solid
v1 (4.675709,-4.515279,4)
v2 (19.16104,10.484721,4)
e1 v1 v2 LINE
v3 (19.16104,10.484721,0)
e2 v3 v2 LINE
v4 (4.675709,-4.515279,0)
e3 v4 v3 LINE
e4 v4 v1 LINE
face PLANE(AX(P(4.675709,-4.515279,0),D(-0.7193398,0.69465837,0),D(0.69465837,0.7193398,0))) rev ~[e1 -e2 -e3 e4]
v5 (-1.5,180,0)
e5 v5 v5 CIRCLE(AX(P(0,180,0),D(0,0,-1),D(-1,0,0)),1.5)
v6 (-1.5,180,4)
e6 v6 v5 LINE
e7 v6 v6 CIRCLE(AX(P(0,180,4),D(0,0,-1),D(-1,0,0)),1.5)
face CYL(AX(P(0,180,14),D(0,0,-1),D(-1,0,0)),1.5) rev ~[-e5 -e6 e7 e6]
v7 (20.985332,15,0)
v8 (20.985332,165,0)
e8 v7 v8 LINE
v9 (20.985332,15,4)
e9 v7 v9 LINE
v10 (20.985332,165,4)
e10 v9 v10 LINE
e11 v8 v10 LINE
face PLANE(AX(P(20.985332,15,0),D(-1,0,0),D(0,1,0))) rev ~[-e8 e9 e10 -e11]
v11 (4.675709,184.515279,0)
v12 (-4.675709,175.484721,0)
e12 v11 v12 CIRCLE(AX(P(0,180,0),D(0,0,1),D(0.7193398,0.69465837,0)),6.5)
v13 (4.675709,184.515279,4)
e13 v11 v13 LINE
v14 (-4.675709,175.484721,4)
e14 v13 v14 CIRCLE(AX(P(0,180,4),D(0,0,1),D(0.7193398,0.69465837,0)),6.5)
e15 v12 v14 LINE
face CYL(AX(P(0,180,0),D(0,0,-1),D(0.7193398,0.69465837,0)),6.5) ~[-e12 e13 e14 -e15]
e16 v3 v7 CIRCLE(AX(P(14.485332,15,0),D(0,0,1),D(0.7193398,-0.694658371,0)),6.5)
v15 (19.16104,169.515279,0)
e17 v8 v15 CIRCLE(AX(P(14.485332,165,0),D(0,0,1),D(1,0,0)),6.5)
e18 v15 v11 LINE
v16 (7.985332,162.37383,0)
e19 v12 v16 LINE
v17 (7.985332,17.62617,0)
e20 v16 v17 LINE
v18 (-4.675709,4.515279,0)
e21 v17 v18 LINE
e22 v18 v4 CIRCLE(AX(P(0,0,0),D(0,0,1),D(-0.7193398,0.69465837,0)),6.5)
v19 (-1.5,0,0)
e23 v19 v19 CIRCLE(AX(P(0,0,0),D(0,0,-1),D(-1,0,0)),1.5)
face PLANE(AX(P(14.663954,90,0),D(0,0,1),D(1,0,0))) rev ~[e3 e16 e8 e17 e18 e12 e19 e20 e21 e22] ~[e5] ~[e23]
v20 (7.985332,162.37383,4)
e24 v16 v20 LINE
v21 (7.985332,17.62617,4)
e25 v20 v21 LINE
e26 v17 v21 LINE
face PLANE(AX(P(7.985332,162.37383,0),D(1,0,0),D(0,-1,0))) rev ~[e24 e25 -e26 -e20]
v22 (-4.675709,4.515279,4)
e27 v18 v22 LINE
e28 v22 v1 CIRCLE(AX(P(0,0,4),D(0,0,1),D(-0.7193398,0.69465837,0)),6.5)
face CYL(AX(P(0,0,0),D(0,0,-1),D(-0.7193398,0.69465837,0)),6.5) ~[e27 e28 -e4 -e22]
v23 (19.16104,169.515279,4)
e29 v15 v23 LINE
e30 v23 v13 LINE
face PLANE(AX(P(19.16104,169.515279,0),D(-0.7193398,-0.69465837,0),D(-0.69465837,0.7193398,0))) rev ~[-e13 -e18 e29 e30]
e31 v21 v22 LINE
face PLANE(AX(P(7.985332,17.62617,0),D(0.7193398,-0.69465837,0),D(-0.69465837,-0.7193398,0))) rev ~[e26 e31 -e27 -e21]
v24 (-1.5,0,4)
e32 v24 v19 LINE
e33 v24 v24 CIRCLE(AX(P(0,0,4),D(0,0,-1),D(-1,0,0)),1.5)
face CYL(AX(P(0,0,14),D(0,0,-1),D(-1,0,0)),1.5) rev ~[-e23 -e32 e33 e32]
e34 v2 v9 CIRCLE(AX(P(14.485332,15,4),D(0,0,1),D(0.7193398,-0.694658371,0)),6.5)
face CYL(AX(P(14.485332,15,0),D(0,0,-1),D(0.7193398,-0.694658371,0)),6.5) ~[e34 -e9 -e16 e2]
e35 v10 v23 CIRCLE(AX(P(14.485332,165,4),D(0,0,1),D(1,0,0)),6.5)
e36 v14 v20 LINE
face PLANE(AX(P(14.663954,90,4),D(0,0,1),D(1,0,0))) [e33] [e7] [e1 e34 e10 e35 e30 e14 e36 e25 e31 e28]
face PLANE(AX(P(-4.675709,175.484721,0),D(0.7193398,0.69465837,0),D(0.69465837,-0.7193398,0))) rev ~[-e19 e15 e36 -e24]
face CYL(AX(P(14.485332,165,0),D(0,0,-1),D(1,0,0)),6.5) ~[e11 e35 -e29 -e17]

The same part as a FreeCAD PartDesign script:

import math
import FreeCAD as App
import Part
import Sketcher

V = App.Vector
Q = App.Units.Quantity

doc = App.newDocument("Part")
body = doc.addObject("PartDesign::Body", "Body")

# Sketch on XY plane
sketch1 = body.newObject("Sketcher::SketchObject", "Sketch")
sketch1.AttachmentSupport = (doc.getObject("XY_Plane"), [""])
sketch1.MapMode = "FlatFace"
sketch1.addGeometry([
    Part.LineSegment(V(8, 162.4, 0), V(8, 17.6, 0)),  # 0
    Part.LineSegment(V(8, 17.6, 0), V(-4.7, 4.5, 0)),  # 1
    Part.ArcOfCircle(Part.Circle(V(0, 0, 0), V(0, 0, 1), 6.5), math.radians(136), math.radians(316)),  # 2
    Part.LineSegment(V(4.7, -4.5, 0), V(19.2, 10.5, 0)),  # 3
    Part.ArcOfCircle(Part.Circle(V(14.5, 15, 0), V(0, 0, 1), 6.5), math.radians(-44), math.radians(0)),  # 4
    Part.LineSegment(V(21, 15, 0), V(21, 165, 0)),  # 5
    Part.ArcOfCircle(Part.Circle(V(14.5, 165, 0), V(0, 0, 1), 6.5), math.radians(0), math.radians(44)),  # 6
    Part.LineSegment(V(19.2, 169.5, 0), V(4.7, 184.5, 0)),  # 7
    Part.ArcOfCircle(Part.Circle(V(0, 180, 0), V(0, 0, 1), 6.5), math.radians(44), math.radians(224)),  # 8
    Part.LineSegment(V(-4.7, 175.5, 0), V(8, 162.4, 0)),  # 9
], False)
sketch1.addConstraint([
    Sketcher.Constraint("Coincident", 0, 2, 1, 1),
    Sketcher.Constraint("Tangent", 1, 2, 2, 1),
    Sketcher.Constraint("Tangent", 2, 2, 3, 1),
    Sketcher.Constraint("Tangent", 3, 2, 4, 1),
    Sketcher.Constraint("Tangent", 4, 2, 5, 1),
    Sketcher.Constraint("Tangent", 5, 2, 6, 1),
    Sketcher.Constraint("Tangent", 6, 2, 7, 1),
    Sketcher.Constraint("Tangent", 7, 2, 8, 1),
    Sketcher.Constraint("Tangent", 8, 2, 9, 1),
    Sketcher.Constraint("Coincident", 9, 2, 0, 1),
    Sketcher.Constraint("Vertical", 0),
    Sketcher.Constraint("Vertical", 5),
    Sketcher.Constraint("Coincident", 2, 3, -1, 1),
    Sketcher.Constraint("Equal", 2, 4),
    Sketcher.Constraint("Equal", 4, 6),
    Sketcher.Constraint("Equal", 6, 8),
    Sketcher.Constraint("PointOnObject", 8, 3, -2),
    Sketcher.Constraint("Parallel", 1, 3),
    Sketcher.Constraint("Parallel", 7, 9),
    Sketcher.Constraint("Vertical", 3, 2, 6, 2),
    Sketcher.Constraint("Radius", 2, 6.5),
    Sketcher.Constraint("DistanceY", 5, 1, 5, 2, 150.0),
    Sketcher.Constraint("Angle", 1, Q("-134 deg")),
    Sketcher.Constraint("DistanceY", -1, 1, 4, 3, 15.0),
    Sketcher.Constraint("DistanceX", 0, 2, 4, 2, 13.0),
])
pad1 = body.newObject("PartDesign::Pad", "Pad")
pad1.Profile = sketch1
pad1.Length = 4

# Sketch on XY plane
sketch2 = body.newObject("Sketcher::SketchObject", "Sketch001")
sketch2.AttachmentSupport = (doc.getObject("XY_Plane"), [""])
sketch2.MapMode = "FlatFace"
sketch2.AttachmentOffset = App.Placement(V(0, 0, 4), App.Rotation())
sketch2.addGeometry([
    Part.Circle(V(0, 0, 0), V(0, 0, 1), 1.5),
    Part.Circle(V(0, 180, 0), V(0, 0, 1), 1.5),
], False)
sketch2.addConstraint([
    Sketcher.Constraint("Coincident", 0, 3, -1, 1),
    Sketcher.Constraint("Equal", 0, 1),
    Sketcher.Constraint("PointOnObject", 1, 3, -2),
    Sketcher.Constraint("Diameter", 0, 3.0),
    Sketcher.Constraint("DistanceY", -1, 1, 1, 3, 180.0),
])
doc.recompute()
hole = body.newObject("PartDesign::Hole", "Hole")
hole.Profile = sketch2
hole.ThreadType = "None"
hole.Diameter = 3
hole.DepthType = "Dimension"
hole.Depth = 10
hole.DrillPoint = "Angled"
hole.DrillPointAngle = 118

doc.recompute()
